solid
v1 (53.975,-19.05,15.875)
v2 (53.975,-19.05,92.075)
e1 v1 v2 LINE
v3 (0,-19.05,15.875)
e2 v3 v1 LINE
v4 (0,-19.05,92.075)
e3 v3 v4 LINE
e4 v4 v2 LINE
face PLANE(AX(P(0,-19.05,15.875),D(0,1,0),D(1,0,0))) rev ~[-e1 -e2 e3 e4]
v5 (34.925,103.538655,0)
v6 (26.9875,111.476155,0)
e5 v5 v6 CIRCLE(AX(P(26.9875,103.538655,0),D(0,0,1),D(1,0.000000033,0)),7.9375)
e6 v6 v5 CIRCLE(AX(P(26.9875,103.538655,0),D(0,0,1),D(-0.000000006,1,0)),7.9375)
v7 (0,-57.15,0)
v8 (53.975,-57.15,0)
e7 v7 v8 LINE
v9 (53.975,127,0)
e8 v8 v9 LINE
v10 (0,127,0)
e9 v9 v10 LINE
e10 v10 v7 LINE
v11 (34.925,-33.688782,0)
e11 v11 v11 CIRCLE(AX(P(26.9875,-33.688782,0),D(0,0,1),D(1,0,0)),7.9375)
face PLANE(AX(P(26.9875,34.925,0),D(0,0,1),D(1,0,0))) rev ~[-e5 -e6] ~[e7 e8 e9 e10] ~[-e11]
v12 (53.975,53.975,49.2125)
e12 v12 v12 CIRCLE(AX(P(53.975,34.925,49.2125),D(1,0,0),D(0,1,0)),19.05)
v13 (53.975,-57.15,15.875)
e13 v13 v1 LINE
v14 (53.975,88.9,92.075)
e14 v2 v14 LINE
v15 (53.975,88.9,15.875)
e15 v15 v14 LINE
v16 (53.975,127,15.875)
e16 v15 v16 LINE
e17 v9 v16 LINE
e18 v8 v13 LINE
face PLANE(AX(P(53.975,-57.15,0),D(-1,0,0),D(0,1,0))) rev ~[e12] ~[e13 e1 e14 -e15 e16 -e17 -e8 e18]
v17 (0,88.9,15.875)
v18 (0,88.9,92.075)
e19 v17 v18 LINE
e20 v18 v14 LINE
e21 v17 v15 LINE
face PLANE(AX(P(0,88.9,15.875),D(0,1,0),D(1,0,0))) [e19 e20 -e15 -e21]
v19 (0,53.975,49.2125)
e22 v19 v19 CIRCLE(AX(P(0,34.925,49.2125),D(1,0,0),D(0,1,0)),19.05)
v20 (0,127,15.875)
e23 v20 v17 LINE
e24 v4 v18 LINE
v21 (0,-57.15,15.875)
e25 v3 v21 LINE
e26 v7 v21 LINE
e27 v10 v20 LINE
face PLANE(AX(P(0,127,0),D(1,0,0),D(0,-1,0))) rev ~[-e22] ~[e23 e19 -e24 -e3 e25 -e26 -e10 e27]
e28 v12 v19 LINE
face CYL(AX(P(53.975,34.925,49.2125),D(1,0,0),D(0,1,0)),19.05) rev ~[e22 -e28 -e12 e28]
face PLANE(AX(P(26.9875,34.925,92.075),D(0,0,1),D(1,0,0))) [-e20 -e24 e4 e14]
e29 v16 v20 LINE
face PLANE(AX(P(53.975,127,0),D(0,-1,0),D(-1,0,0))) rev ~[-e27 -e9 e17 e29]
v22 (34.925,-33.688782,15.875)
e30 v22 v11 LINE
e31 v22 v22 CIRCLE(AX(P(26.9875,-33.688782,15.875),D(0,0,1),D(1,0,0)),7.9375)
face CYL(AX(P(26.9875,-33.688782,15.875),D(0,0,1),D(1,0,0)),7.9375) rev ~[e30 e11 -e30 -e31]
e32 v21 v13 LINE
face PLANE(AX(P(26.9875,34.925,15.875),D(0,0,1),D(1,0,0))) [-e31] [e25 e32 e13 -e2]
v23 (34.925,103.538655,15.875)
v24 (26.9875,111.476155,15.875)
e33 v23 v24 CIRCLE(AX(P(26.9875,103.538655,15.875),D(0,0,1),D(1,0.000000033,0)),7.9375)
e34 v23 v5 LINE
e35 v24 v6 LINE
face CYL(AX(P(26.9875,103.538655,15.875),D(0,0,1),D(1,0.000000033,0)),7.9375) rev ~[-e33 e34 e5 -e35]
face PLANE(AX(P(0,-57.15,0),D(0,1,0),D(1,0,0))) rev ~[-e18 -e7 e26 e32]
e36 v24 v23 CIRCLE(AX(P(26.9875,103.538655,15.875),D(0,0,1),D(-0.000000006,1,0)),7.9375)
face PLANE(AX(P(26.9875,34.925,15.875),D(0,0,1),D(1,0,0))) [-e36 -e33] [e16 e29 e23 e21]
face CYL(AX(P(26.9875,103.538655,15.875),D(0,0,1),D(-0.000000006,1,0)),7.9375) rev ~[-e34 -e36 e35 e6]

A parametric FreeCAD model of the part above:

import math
import FreeCAD as App
import Part
import Sketcher
Q = App.Units.Quantity

doc = App.newDocument("Part")
body = doc.addObject("PartDesign::Body", "Body")

# Sketch on XY plane
sketch1 = body.newObject("Sketcher::SketchObject", "Sketch")
sketch1.AttachmentSupport = (doc.getObject("XY_Plane"), [""])
sketch1.MapMode = "FlatFace"
sketch1.addGeometry([
    Part.LineSegment(App.Vector(0, 127, 0), App.Vector(0, -57, 0)),
    Part.LineSegment(App.Vector(0, -57, 0), App.Vector(54, -57, 0)),
    Part.LineSegment(App.Vector(54, -57, 0), App.Vector(54, 127, 0)),
    Part.LineSegment(App.Vector(54, 127, 0), App.Vector(0, 127, 0)),
], False)
sketch1.addConstraint([
    Sketcher.Constraint("Coincident", 0, 2, 1, 1),
    Sketcher.Constraint("Coincident", 1, 2, 2, 1),
    Sketcher.Constraint("Coincident", 2, 2, 3, 1),
    Sketcher.Constraint("Coincident", 3, 2, 0, 1),
    Sketcher.Constraint("Vertical", 0),
    Sketcher.Constraint("Horizontal", 1),
    Sketcher.Constraint("Vertical", 2),
    Sketcher.Constraint("Horizontal", 3),
    Sketcher.Constraint("PointOnObject", 0, 2, -2),
    Sketcher.Constraint("DistanceY", -1, 1, 2, 2, Q("5 in")),
    Sketcher.Constraint("DistanceY", 0, 2, 0, 1, Q("7.25 in")),
    Sketcher.Constraint("DistanceX", 1, 1, 1, 2, Q("2.125 in")),
])
pad1 = body.newObject("PartDesign::Pad", "Pad")
pad1.Profile = sketch1
pad1.Length = Q("0.625 in")

# Sketch on XY plane
sketch2 = body.newObject("Sketcher::SketchObject", "Sketch001")
sketch2.AttachmentSupport = (doc.getObject("XY_Plane"), [""])
sketch2.MapMode = "FlatFace"
sketch2.AttachmentOffset = App.Placement(App.Vector(0, 0, 0.625 * 25.4), App.Rotation())
sketch2.addGeometry([
    Part.LineSegment(App.Vector(0, 89, 0), App.Vector(0, -19, 0)),
    Part.LineSegment(App.Vector(0, -19, 0), App.Vector(54, -19, 0)),
    Part.LineSegment(App.Vector(54, -19, 0), App.Vector(54, 89, 0)),
    Part.LineSegment(App.Vector(54, 89, 0), App.Vector(0, 89, 0)),
], False)
sketch2.addConstraint([
    Sketcher.Constraint("Coincident", 0, 2, 1, 1),
    Sketcher.Constraint("Coincident", 1, 2, 2, 1),
    Sketcher.Constraint("Coincident", 2, 2, 3, 1),
    Sketcher.Constraint("Coincident", 3, 2, 0, 1),
    Sketcher.Constraint("Vertical", 0),
    Sketcher.Constraint("Horizontal", 1),
    Sketcher.Constraint("Vertical", 2),
    Sketcher.Constraint("Horizontal", 3),
    Sketcher.Constraint("PointOnObject", 0, 2, -2),
    Sketcher.Constraint("DistanceY", 0, 2, 0, 1, Q("4.25 in")),
    Sketcher.Constraint("DistanceY", -1, 1, 2, 2, Q("3.5 in")),
    Sketcher.Constraint("DistanceX", 1, 1, 1, 2, Q("2.125 in")),
])
pad2 = body.newObject("PartDesign::Pad", "Pad001")
pad2.Profile = sketch2
pad2.Length = Q("3 in")

# Sketch on YZ plane
sketch3 = body.newObject("Sketcher::SketchObject", "Sketch002")
sketch3.AttachmentSupport = (doc.getObject("YZ_Plane"), [""])
sketch3.MapMode = "FlatFace"
sketch3.AttachmentOffset = App.Placement(App.Vector(0, 0, 2.125 * 25.4), App.Rotation())
sketch3.addGeometry(Part.Circle(App.Vector(35, 49, 0), App.Vector(0, 0, 1), 19), False)
sketch3.addConstraint([
    Sketcher.Constraint("Diameter", 0, Q("1.5 in")),
    Sketcher.Constraint("DistanceX", -1, 1, 0, 3, Q("1.375 in")),
    Sketcher.Constraint("DistanceY", -1, 1, 0, 3, Q("1.9375 in")),
])
pocket1 = body.newObject("PartDesign::Pocket", "Pocket")
pocket1.Profile = sketch3
pocket1.Length = Q("3 in")

# Sketch on XY plane
sketch4 = body.newObject("Sketcher::SketchObject", "Sketch003")
sketch4.AttachmentSupport = (doc.getObject("XY_Plane"), [""])
sketch4.MapMode = "FlatFace"
sketch4.AttachmentOffset = App.Placement(App.Vector(0, 0, 0.625 * 25.4), App.Rotation())
sketch4.addGeometry([
    Part.ArcOfCircle(Part.Circle(App.Vector(27, 104, 0), App.Vector(0, 0, 1), 8), math.radians(90), math.radians(360)),
    Part.ArcOfCircle(Part.Circle(App.Vector(27, 104, 0), App.Vector(0, 0, 1), 8), math.radians(0), math.radians(90)),
], False)
sketch4.addConstraint([
    Sketcher.Constraint("Tangent", 0, 1, 1, 2),
    Sketcher.Constraint("Coincident", 1, 1, 0, 2),
    Sketcher.Constraint("Horizontal", 0, 3, 1, 1),
    Sketcher.Constraint("Vertical", 1, 3, 0, 1),
    Sketcher.Constraint("Radius", 0, Q("0.3125 in")),
    Sketcher.Constraint("DistanceX", -1, 1, 0, 3, Q("1.0625 in")),
    Sketcher.Constraint("DistanceY", -1, 1, 0, 3, 103.538655),
])
pocket2 = body.newObject("PartDesign::Pocket", "Pocket001")
pocket2.Profile = sketch4
pocket2.Length = Q("3 in")

# Sketch on XY plane
sketch5 = body.newObject("Sketcher::SketchObject", "Sketch004")
sketch5.AttachmentSupport = (doc.getObject("XY_Plane"), [""])
sketch5.MapMode = "FlatFace"
sketch5.AttachmentOffset = App.Placement(App.Vector(0, 0, 0.625 * 25.4), App.Rotation())
sketch5.addGeometry(Part.Circle(App.Vector(27, -34, 0), App.Vector(0, 0, 1), 8), False)
sketch5.addConstraint([
    Sketcher.Constraint("Diameter", 0, Q("0.625 in")),
    Sketcher.Constraint("DistanceX", -1, 1, 0, 3, Q("1.0625 in")),
    Sketcher.Constraint("DistanceY", 0, 3, -1, 1, 33.688782),
])
pocket3 = body.newObject("PartDesign::Pocket", "Pocket002")
pocket3.Profile = sketch5
pocket3.Length = Q("1 in")

doc.recompute()
